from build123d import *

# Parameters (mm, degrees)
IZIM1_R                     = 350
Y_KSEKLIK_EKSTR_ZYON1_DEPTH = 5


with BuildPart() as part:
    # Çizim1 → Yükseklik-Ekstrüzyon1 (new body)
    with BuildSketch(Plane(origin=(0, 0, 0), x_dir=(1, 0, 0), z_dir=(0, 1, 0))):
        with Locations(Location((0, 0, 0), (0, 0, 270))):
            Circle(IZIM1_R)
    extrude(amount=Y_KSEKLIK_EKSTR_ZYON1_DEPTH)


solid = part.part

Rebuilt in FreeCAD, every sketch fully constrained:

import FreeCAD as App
import Part
import Sketcher
from FreeCAD import Vector
Q = App.Units.Quantity

doc = App.newDocument("Part")
body = doc.addObject("PartDesign::Body", "Body")

sketch1 = body.newObject("Sketcher::SketchObject", "Sketch")
sketch1.AttachmentSupport = (doc.getObject("XZ_Plane"), [""])
sketch1.MapMode = "FlatFace"
sketch1.addGeometry(Part.Circle(Vector(0, 0, 0), Vector(0, 0, 1), 350), False)
sketch1.addConstraint(Sketcher.Constraint("Coincident", 0, 3, -1, 1))
sketch1.addConstraint(Sketcher.Constraint("Diameter", 0, Q("700 mm")))
pad1 = body.newObject("PartDesign::Pad", "Pad")
pad1.Profile = sketch1
pad1.Length = 5
pad1.Reversed = True

doc.recompute()
